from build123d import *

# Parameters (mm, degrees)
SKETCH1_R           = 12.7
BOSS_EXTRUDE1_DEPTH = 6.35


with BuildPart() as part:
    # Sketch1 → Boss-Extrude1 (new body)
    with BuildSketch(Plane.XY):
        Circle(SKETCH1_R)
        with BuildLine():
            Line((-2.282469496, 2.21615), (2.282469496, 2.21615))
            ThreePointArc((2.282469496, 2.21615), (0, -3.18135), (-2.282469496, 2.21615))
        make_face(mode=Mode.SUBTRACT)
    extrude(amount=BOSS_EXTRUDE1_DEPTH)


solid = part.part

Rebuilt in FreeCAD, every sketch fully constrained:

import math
import FreeCAD as App
import Part
import Sketcher
Q = App.Units.Quantity

doc = App.newDocument("Part")
params = doc.addObject("Spreadsheet::Sheet", "Params")
for row, (alias, value) in enumerate([
    ("sketch1_diameter", "1 in"),
    ("pad1_length", "0.25 in"),
], start=1):
    params.set(f"A{row}", alias)
    params.set(f"B{row}", "=" + value)
    params.setAlias(f"B{row}", alias)

body = doc.addObject("PartDesign::Body", "Body")

# Sketch on XY plane
sketch1 = body.newObject("Sketcher::SketchObject", "Sketch")
sketch1.AttachmentSupport = (doc.getObject("XY_Plane"), [""])
sketch1.MapMode = "FlatFace"
sketch1.addGeometry([
    Part.Circle(App.Vector(0, 0, 0), App.Vector(0, 0, 1), 12.7),
    Part.ArcOfCircle(Part.Circle(App.Vector(0, 0, 0), App.Vector(0, 0, 1), 3.2), math.radians(136), math.radians(404)),
    Part.LineSegment(App.Vector(-2.3, 2.2, 0), App.Vector(2.3, 2.2, 0)),
], False)
sketch1.addConstraint([
    Sketcher.Constraint("Coincident", 1, 1, 2, 1),
    Sketcher.Constraint("Coincident", 2, 2, 1, 2),
    Sketcher.Constraint("Horizontal", 2),
    Sketcher.Constraint("Coincident", 0, 3, -1, 1),
    Sketcher.Constraint("Coincident", 1, 3, -1, 1),
    Sketcher.Constraint("Diameter", 0, Q("1 in")),
    Sketcher.Constraint("Radius", 1, Q("3.18135 mm")),
    Sketcher.Constraint("DistanceX", 2, 1, 2, 2, Q("4.564939 mm")),
])
sketch1.setExpression("Constraints[5]", "Params.sketch1_diameter")
pad1 = body.newObject("PartDesign::Pad", "Pad")
pad1.Profile = sketch1
pad1.setExpression("Length", "Params.pad1_length")

doc.recompute()
